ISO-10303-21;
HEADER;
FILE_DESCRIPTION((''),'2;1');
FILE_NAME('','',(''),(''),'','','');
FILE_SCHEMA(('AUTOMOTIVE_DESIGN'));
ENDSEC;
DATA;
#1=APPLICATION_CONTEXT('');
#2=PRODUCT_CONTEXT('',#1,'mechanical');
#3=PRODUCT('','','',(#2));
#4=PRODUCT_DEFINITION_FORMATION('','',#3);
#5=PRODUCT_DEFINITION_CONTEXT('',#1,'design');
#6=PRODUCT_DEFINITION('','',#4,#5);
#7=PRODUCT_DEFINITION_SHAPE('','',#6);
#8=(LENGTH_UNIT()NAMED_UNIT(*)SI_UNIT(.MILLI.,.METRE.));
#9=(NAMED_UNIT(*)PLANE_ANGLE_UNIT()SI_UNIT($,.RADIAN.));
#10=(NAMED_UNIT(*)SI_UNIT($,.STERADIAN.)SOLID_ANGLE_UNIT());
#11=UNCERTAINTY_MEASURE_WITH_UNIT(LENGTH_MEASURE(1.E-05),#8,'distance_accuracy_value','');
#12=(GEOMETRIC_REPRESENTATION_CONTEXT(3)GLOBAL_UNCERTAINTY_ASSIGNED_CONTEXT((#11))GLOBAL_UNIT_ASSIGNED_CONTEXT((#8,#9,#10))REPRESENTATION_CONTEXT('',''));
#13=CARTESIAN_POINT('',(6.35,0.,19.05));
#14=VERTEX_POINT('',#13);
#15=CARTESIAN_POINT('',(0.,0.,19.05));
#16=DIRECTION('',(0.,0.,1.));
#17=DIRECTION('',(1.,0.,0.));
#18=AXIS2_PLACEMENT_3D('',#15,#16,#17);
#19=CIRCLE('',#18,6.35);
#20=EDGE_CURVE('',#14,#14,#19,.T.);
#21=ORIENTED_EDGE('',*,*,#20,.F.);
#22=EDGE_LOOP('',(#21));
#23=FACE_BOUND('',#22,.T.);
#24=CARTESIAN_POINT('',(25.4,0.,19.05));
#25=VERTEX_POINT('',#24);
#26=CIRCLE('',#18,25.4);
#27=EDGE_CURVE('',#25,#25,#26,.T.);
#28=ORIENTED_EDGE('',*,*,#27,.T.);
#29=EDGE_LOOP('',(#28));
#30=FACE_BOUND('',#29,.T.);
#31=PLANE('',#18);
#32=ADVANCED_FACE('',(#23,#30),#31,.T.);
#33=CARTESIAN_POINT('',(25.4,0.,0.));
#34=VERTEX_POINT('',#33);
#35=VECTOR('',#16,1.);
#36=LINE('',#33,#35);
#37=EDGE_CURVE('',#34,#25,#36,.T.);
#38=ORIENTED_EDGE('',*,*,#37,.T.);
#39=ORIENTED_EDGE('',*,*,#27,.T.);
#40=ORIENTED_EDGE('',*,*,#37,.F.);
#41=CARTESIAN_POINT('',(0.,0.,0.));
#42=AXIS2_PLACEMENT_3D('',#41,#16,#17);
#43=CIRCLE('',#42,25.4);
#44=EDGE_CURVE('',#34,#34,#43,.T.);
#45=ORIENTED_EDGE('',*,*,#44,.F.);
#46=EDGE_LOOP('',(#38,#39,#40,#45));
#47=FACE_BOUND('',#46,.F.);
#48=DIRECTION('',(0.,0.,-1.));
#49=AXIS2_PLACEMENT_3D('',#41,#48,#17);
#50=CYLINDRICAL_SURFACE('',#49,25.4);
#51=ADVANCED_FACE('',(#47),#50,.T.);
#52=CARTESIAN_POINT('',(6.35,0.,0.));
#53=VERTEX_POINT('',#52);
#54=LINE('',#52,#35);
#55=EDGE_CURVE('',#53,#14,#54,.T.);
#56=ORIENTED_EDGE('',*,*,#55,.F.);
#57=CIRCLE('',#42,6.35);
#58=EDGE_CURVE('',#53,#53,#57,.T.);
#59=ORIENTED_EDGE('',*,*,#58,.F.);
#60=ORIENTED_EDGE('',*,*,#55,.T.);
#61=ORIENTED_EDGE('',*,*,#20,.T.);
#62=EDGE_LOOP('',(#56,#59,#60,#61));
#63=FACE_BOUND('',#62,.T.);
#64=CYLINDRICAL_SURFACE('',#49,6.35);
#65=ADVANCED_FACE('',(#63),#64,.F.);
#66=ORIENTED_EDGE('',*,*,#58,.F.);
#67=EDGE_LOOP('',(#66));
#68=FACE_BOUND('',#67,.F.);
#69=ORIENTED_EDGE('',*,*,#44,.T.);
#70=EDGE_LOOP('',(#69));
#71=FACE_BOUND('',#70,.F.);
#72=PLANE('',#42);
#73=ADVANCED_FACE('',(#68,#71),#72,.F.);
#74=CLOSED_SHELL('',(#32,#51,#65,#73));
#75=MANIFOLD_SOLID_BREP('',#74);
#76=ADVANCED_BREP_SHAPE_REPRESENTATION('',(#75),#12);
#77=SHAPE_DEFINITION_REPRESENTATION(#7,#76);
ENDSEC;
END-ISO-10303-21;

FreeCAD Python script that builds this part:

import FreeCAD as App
import Part
import Sketcher
from FreeCAD import Vector
Q = App.Units.Quantity

doc = App.newDocument("Part")
body = doc.addObject("PartDesign::Body", "Body")

sketch1 = doc.addObject("Sketcher::SketchObject", "Sketch")
body.addObject(sketch1)
sketch1.AttachmentSupport = (doc.XY_Plane, [""])
sketch1.MapMode = "FlatFace"
sketch1.addGeometry([
    Part.Circle(Vector(0, 0, 0), Vector(0, 0, 1), 25.4),
    Part.Circle(Vector(0, 0, 0), Vector(0, 0, 1), 6.35),
], False)
sketch1.addConstraint([
    Sketcher.Constraint("Coincident", 0, 3, -1, 1),
    Sketcher.Constraint("Coincident", 1, 3, -1, 1),
    Sketcher.Constraint("Diameter", 0, Q("2 in")),
    Sketcher.Constraint("Diameter", 1, Q("0.5 in")),
])
pad1 = doc.addObject("PartDesign::Pad", "Pad")
body.addObject(pad1)
pad1.Profile = sketch1
pad1.Length = Q("0.75 in")

doc.recompute()
